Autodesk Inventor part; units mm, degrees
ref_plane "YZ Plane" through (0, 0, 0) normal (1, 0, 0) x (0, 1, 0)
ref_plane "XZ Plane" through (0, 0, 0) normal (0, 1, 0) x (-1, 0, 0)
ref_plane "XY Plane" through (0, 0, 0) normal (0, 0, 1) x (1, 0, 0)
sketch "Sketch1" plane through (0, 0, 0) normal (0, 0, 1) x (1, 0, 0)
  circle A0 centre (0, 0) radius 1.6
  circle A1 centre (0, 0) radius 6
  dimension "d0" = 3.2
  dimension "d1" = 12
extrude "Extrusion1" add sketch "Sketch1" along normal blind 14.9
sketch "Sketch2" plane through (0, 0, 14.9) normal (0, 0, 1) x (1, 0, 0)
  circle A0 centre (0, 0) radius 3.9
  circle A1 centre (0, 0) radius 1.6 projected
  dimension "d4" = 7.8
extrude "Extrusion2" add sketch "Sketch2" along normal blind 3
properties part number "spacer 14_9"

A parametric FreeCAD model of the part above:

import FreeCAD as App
import Part
import Sketcher

V = App.Vector
Q = App.Units.Quantity

doc = App.newDocument("Part")
body = doc.addObject("PartDesign::Body", "Body")

sketch1 = body.newObject("Sketcher::SketchObject", "Sketch")
sketch1.AttachmentSupport = (doc.getObject("XY_Plane"), [""])
sketch1.MapMode = "FlatFace"
sketch1.addGeometry([
    Part.Circle(V(0, 0, 0), V(0, 0, 1), 6),
    Part.Circle(V(0, 0, 0), V(0, 0, 1), 1.6),
], False)
sketch1.addConstraint([
    Sketcher.Constraint("Coincident", 0, 3, -1, 1),
    Sketcher.Constraint("Coincident", 1, 3, -1, 1),
    Sketcher.Constraint("Diameter", 0, Q("12 mm")),
    Sketcher.Constraint("Diameter", 1, Q("3.2 mm")),
])
pad1 = body.newObject("PartDesign::Pad", "Pad")
pad1.Profile = sketch1
pad1.Length = 14.9

sketch2 = body.newObject("Sketcher::SketchObject", "Sketch001")
sketch2.AttachmentSupport = (doc.getObject("XY_Plane"), [""])
sketch2.MapMode = "FlatFace"
sketch2.AttachmentOffset = App.Placement(V(0, 0, 14.9), App.Rotation())
sketch2.addGeometry([
    Part.Circle(V(0, 0, 0), V(0, 0, 1), 3.9),
    Part.Circle(V(0, 0, 0), V(0, 0, 1), 1.6),
], False)
sketch2.addConstraint([
    Sketcher.Constraint("Coincident", 0, 3, -1, 1),
    Sketcher.Constraint("Coincident", 1, 3, -1, 1),
    Sketcher.Constraint("Diameter", 0, Q("7.8 mm")),
    Sketcher.Constraint("Diameter", 1, Q("3.2 mm")),
])
pad2 = body.newObject("PartDesign::Pad", "Pad001")
pad2.Profile = sketch2
pad2.Length = 3

doc.recompute()
